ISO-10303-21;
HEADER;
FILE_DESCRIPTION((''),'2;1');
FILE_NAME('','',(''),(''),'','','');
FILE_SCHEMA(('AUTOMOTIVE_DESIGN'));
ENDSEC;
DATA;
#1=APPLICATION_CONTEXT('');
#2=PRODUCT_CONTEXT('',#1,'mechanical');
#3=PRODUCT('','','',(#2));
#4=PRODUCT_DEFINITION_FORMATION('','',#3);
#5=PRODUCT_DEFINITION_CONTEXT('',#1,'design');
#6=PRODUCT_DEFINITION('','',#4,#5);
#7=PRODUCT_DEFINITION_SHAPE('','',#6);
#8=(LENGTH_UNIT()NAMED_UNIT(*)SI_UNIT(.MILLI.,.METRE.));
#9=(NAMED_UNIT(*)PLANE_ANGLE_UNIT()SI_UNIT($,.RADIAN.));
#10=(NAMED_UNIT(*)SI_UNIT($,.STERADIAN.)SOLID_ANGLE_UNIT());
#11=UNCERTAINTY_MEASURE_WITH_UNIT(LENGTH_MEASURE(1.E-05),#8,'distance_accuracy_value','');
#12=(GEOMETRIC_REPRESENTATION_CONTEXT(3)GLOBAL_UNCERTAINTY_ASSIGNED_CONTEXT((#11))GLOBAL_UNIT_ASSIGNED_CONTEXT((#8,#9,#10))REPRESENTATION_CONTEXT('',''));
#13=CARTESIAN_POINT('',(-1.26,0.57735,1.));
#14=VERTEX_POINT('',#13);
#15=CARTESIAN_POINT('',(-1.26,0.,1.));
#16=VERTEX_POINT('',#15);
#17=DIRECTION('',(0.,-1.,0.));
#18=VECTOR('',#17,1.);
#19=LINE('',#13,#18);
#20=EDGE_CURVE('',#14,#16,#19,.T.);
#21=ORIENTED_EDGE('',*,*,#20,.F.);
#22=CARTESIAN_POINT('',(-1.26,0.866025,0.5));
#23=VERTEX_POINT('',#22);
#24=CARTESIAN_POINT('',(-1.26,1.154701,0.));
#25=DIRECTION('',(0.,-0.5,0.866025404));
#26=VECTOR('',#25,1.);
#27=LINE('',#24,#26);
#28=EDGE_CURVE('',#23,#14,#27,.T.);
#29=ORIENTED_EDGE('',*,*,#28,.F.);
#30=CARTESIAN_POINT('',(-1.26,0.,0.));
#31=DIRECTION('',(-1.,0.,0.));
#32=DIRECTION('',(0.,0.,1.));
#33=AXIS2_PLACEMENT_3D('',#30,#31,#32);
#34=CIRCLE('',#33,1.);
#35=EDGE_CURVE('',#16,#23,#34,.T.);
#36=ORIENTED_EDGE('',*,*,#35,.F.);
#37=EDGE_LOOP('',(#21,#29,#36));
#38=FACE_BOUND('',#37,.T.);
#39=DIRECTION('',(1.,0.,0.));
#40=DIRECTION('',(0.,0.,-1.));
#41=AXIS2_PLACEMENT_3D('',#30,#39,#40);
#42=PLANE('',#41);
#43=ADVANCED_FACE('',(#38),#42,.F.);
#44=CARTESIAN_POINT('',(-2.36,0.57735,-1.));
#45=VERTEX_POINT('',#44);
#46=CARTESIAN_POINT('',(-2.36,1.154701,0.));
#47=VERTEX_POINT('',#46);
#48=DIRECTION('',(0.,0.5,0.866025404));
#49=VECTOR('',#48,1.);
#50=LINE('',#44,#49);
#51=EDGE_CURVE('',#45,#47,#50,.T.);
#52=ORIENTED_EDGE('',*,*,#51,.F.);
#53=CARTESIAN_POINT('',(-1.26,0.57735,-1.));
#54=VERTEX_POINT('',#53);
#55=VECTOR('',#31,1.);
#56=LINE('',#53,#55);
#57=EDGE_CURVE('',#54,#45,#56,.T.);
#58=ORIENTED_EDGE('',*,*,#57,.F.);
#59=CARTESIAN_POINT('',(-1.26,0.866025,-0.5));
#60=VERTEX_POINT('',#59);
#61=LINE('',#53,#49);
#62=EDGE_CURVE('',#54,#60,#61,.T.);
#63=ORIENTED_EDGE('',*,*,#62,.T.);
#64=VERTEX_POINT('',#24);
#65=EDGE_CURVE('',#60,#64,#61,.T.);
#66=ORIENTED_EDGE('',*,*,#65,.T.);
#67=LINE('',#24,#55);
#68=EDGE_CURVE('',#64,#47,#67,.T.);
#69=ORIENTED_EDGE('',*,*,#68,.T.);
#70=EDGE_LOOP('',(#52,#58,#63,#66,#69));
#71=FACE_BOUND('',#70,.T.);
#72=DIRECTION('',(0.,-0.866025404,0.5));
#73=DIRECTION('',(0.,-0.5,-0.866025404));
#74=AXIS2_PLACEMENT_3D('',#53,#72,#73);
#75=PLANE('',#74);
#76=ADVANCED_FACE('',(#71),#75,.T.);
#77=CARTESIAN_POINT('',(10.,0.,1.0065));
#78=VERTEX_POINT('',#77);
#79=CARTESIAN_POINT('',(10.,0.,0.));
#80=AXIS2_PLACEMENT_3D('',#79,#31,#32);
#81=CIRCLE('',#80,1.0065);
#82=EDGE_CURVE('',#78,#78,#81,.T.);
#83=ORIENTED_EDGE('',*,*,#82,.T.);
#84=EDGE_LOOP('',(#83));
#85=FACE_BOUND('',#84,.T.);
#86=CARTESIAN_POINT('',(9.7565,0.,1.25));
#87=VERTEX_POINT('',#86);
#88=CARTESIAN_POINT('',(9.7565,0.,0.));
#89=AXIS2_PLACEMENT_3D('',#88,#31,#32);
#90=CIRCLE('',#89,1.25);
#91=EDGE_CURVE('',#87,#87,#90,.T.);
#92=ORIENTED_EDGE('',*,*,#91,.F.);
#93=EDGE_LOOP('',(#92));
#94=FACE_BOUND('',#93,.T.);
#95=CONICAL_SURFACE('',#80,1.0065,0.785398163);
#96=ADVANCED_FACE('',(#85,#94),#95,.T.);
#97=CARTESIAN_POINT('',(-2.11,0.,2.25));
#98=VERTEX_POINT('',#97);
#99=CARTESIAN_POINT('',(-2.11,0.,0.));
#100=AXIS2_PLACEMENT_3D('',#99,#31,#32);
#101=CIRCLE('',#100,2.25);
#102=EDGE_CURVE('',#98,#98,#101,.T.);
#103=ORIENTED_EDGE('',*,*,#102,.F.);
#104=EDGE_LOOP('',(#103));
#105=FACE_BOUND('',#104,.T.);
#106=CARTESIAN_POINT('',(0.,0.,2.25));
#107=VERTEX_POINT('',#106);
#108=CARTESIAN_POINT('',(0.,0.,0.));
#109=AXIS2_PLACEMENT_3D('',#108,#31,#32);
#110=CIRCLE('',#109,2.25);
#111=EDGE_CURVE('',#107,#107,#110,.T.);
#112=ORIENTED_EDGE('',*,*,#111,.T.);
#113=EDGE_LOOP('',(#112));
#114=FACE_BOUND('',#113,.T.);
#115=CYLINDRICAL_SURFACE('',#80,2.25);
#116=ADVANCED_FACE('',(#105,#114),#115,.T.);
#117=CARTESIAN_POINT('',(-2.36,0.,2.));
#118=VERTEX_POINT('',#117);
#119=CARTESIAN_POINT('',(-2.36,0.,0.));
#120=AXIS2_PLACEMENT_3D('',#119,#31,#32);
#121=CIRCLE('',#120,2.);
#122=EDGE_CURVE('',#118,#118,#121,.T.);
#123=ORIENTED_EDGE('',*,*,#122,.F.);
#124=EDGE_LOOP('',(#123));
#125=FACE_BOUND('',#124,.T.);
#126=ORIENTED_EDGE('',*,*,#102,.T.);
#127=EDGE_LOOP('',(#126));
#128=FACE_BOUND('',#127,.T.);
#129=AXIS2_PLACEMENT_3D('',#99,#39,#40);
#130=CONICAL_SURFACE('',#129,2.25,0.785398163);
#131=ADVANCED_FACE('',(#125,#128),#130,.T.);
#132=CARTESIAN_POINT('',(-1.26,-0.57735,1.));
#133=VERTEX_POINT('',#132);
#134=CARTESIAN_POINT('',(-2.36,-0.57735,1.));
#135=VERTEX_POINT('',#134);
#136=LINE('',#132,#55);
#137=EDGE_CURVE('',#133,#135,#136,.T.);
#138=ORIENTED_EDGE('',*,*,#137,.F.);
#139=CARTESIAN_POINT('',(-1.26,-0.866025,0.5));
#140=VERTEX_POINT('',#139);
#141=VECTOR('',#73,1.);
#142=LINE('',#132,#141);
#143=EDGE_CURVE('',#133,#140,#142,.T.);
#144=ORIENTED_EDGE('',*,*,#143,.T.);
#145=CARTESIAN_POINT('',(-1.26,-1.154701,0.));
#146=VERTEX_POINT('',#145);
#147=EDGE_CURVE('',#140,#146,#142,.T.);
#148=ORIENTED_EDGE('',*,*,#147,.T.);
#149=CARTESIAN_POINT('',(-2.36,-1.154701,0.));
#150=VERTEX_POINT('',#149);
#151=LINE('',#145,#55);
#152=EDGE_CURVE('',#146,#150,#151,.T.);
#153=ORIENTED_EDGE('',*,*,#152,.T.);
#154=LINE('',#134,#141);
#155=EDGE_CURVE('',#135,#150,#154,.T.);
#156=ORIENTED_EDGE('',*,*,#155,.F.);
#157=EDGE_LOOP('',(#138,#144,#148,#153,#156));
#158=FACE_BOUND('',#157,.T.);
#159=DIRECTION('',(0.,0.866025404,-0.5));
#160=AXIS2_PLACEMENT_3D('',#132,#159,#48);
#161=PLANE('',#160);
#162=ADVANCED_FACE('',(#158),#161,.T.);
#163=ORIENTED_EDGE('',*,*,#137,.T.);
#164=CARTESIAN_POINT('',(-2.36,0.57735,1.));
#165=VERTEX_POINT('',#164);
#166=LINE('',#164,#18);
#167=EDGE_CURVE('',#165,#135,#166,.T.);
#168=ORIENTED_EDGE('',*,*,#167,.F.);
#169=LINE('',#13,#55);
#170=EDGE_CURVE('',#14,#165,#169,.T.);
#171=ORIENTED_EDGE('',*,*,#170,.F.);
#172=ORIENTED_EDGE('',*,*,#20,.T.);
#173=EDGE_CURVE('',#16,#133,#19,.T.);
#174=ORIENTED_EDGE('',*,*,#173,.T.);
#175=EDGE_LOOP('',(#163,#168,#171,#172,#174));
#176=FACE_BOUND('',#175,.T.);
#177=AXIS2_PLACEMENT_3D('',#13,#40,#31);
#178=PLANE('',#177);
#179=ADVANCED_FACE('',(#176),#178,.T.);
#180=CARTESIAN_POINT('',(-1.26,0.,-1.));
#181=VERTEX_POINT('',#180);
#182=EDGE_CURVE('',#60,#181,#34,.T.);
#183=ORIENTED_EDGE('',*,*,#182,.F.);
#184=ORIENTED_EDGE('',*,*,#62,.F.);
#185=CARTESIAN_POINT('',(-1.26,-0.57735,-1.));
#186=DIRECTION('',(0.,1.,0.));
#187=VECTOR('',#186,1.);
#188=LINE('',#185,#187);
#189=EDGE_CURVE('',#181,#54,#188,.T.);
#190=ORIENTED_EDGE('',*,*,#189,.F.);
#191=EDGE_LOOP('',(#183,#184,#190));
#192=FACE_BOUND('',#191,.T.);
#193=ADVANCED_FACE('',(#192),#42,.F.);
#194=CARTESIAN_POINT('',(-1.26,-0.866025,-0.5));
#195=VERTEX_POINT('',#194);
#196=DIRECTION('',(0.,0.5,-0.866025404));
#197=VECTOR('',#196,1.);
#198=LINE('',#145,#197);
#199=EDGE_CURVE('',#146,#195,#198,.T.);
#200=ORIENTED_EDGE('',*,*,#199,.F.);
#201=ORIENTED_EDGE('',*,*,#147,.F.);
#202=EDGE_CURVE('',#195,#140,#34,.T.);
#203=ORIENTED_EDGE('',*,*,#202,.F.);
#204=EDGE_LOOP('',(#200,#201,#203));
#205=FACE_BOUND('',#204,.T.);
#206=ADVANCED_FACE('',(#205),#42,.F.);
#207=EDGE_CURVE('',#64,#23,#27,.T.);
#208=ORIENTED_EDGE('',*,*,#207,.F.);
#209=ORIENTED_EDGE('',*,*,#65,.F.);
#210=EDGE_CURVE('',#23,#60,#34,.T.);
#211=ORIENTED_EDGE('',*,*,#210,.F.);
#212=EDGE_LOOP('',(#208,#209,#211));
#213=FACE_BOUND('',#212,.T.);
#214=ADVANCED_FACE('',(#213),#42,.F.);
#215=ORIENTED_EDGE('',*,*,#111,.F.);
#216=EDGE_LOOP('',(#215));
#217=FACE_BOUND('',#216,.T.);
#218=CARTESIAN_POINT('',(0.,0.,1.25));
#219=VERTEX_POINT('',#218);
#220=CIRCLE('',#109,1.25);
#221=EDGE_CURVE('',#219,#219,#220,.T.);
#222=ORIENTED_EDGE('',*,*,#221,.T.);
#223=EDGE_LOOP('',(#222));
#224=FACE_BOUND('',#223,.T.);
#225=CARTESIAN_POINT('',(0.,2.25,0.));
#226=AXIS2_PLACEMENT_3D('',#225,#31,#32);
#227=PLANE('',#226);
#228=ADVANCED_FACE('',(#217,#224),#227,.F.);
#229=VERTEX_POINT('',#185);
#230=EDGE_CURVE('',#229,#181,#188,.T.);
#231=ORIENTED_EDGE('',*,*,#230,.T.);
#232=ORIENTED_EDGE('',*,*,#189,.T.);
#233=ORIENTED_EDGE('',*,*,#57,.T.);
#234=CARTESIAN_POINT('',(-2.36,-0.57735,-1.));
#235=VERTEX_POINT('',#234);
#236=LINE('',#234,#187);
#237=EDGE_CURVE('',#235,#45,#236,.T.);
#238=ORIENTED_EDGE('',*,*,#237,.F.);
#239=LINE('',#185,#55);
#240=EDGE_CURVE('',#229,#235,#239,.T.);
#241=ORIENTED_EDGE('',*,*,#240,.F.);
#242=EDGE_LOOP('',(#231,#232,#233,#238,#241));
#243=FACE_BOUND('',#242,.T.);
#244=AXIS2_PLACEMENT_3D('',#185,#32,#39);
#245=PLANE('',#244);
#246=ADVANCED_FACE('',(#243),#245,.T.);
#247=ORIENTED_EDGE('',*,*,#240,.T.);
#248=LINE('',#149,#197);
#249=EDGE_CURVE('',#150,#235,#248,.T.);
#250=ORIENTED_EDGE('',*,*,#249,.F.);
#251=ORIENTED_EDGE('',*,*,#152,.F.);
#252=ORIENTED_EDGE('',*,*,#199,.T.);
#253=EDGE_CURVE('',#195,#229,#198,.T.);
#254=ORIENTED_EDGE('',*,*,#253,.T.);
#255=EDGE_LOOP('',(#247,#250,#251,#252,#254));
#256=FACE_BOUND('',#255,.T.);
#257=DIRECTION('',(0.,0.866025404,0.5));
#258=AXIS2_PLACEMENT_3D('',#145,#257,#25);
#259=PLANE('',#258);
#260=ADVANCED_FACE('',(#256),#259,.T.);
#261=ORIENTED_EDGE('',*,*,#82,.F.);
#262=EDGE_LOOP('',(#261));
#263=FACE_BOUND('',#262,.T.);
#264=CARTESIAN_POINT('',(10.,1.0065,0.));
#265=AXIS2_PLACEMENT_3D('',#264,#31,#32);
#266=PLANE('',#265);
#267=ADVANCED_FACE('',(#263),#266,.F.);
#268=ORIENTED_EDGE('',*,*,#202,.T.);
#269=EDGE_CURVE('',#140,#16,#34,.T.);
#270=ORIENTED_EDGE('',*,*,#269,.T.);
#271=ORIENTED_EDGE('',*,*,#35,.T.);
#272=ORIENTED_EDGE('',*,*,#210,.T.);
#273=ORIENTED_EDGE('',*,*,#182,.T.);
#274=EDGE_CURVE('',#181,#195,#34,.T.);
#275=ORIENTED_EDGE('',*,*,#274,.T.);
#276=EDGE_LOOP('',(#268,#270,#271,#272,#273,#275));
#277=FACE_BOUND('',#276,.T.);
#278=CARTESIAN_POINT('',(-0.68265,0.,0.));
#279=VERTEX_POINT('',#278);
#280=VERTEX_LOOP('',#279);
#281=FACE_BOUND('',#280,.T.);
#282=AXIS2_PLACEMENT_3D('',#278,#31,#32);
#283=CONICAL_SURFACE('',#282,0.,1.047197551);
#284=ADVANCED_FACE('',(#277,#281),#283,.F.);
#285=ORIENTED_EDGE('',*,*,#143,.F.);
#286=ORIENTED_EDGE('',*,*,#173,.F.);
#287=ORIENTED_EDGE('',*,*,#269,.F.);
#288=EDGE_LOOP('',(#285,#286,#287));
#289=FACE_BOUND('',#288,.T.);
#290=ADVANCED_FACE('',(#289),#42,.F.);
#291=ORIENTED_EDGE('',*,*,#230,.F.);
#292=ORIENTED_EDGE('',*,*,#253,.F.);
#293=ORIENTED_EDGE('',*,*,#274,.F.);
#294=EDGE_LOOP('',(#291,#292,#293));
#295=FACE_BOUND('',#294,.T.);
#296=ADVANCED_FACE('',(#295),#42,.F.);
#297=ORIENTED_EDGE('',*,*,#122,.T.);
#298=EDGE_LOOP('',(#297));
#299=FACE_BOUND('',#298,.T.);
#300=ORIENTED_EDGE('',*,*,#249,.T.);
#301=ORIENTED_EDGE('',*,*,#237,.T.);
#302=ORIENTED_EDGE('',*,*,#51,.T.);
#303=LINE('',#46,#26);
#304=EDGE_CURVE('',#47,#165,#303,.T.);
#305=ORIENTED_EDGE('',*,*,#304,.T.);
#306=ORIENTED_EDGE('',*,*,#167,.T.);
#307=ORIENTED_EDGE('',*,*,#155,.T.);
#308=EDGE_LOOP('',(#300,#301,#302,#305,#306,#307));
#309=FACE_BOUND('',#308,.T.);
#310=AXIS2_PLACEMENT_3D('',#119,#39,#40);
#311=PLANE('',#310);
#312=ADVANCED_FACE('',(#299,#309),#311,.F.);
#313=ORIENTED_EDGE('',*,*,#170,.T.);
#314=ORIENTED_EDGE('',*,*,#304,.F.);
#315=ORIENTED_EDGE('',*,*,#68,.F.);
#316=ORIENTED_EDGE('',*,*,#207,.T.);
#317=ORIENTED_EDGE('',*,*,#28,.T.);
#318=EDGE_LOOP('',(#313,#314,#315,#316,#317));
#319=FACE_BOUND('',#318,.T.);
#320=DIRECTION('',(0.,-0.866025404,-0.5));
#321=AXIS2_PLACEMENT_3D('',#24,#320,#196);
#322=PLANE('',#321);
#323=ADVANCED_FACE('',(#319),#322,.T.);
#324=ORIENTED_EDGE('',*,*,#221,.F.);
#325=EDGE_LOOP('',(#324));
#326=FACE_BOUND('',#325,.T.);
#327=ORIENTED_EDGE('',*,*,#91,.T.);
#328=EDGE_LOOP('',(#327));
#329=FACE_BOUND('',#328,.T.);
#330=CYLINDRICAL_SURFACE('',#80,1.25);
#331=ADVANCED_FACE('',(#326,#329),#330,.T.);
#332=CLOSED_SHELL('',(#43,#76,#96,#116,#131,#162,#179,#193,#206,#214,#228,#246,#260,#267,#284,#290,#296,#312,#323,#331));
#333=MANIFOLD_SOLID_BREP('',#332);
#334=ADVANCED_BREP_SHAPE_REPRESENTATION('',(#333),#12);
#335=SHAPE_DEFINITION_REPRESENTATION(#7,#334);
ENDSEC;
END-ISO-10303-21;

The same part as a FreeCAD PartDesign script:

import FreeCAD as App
import Part
import Sketcher

V = App.Vector
Q = App.Units.Quantity

doc = App.newDocument("Part")
body = doc.addObject("PartDesign::Body", "Body")

# Sketch on XY plane
sketch1 = body.newObject("Sketcher::SketchObject", "Sketch")
sketch1.AttachmentSupport = (doc.getObject("XY_Plane"), [""])
sketch1.MapMode = "FlatFace"
sketch1.addGeometry([
    Part.LineSegment(V(-2.36, 2, 0), V(-2.36, 0, 0)),  # 0
    Part.LineSegment(V(-2.36, 0, 0), V(10, 0, 0)),  # 1
    Part.LineSegment(V(10, 0, 0), V(10, 1.0065, 0)),  # 2
    Part.LineSegment(V(10, 1.0065, 0), V(9.7565, 1.25, 0)),  # 3
    Part.LineSegment(V(9.7565, 1.25, 0), V(0, 1.25, 0)),  # 4
    Part.LineSegment(V(0, 1.25, 0), V(0, 2.25, 0)),  # 5
    Part.LineSegment(V(0, 2.25, 0), V(-2.11, 2.25, 0)),  # 6
    Part.LineSegment(V(-2.11, 2.25, 0), V(-2.36, 2, 0)),  # 7
], False)
sketch1.addConstraint([
    Sketcher.Constraint("Coincident", 0, 2, 1, 1),
    Sketcher.Constraint("Coincident", 1, 2, 2, 1),
    Sketcher.Constraint("Coincident", 2, 2, 3, 1),
    Sketcher.Constraint("Coincident", 3, 2, 4, 1),
    Sketcher.Constraint("Coincident", 4, 2, 5, 1),
    Sketcher.Constraint("Coincident", 5, 2, 6, 1),
    Sketcher.Constraint("Coincident", 6, 2, 7, 1),
    Sketcher.Constraint("Coincident", 7, 2, 0, 1),
    Sketcher.Constraint("Vertical", 0),
    Sketcher.Constraint("Horizontal", 1),
    Sketcher.Constraint("Vertical", 2),
    Sketcher.Constraint("Horizontal", 4),
    Sketcher.Constraint("Vertical", 5),
    Sketcher.Constraint("Horizontal", 6),
    Sketcher.Constraint("PointOnObject", 0, 2, -1),
    Sketcher.Constraint("PointOnObject", 4, 2, -2),
    Sketcher.Constraint("Perpendicular", 3, 7),
    Sketcher.Constraint("DistanceY", 0, 2, 0, 1, 2.0),
    Sketcher.Constraint("DistanceY", 5, 1, 5, 2, 1.0),
    Sketcher.Constraint("Angle", 3, Q("135 deg")),
    Sketcher.Constraint("DistanceX", -1, 1, 1, 2, 10.0),
    Sketcher.Constraint("DistanceX", 1, 1, 1, 2, 12.36),
    Sketcher.Constraint("DistanceX", 6, 2, 6, 1, 2.11),
    Sketcher.Constraint("DistanceX", 4, 2, 4, 1, 9.7565),
])
revolution = body.newObject("PartDesign::Revolution", "Revolution")
revolution.Profile = sketch1
revolution.ReferenceAxis = (sketch1, ["H_Axis"])
revolution.Angle = 360

# Sketch on YZ plane
sketch2 = body.newObject("Sketcher::SketchObject", "Sketch001")
sketch2.AttachmentSupport = (doc.getObject("YZ_Plane"), [""])
sketch2.MapMode = "FlatFace"
sketch2.AttachmentOffset = App.Placement(V(0, 0, -2.36), App.Rotation())
sketch2.addGeometry([
    Part.LineSegment(V(0.57735, 1, 0), V(-0.57735, 1, 0)),  # 0
    Part.LineSegment(V(-0.57735, 1, 0), V(-1.154701, 0, 0)),  # 1
    Part.LineSegment(V(-1.154701, 0, 0), V(-0.57735, -1, 0)),  # 2
    Part.LineSegment(V(-0.57735, -1, 0), V(0.57735, -1, 0)),  # 3
    Part.LineSegment(V(0.57735, -1, 0), V(1.154701, 0, 0)),  # 4
    Part.LineSegment(V(1.154701, 0, 0), V(0.57735, 1, 0)),  # 5
], False)
sketch2.addConstraint([
    Sketcher.Constraint("Coincident", 0, 2, 1, 1),
    Sketcher.Constraint("Coincident", 1, 2, 2, 1),
    Sketcher.Constraint("Coincident", 2, 2, 3, 1),
    Sketcher.Constraint("Coincident", 3, 2, 4, 1),
    Sketcher.Constraint("Coincident", 4, 2, 5, 1),
    Sketcher.Constraint("Coincident", 5, 2, 0, 1),
    Sketcher.Constraint("Horizontal", 0),
    Sketcher.Constraint("Horizontal", 3),
    Sketcher.Constraint("Symmetric", 0, 2, 3, 2, -1, 1),
    Sketcher.Constraint("Symmetric", 1, 2, 4, 2, -1, 1),
    Sketcher.Constraint("PointOnObject", 1, 2, -1),
    Sketcher.Constraint("Parallel", 2, 5),
    Sketcher.Constraint("Vertical", 0, 2, 2, 2),
    Sketcher.Constraint("Angle", 1, Q("-120 deg")),
    Sketcher.Constraint("DistanceY", -1, 1, 0, 2, 1.0),
    Sketcher.Constraint("DistanceX", 0, 2, 0, 1, 1.154701),
])
pocket1 = body.newObject("PartDesign::Pocket", "Pocket")
pocket1.Profile = sketch2
pocket1.Length = 1.1
pocket1.Reversed = True

# Sketch on XY plane
sketch3 = body.newObject("Sketcher::SketchObject", "Sketch002")
sketch3.AttachmentSupport = (doc.getObject("XY_Plane"), [""])
sketch3.MapMode = "FlatFace"
sketch3.addGeometry([
    Part.LineSegment(V(-1.26, 1, 0), V(-1.26, 0, 0)),
    Part.LineSegment(V(-1.26, 0, 0), V(-0.68265, 0, 0)),
    Part.LineSegment(V(-0.68265, 0, 0), V(-1.26, 1, 0)),
], False)
sketch3.addConstraint([
    Sketcher.Constraint("Coincident", 0, 2, 1, 1),
    Sketcher.Constraint("Coincident", 1, 2, 2, 1),
    Sketcher.Constraint("Coincident", 2, 2, 0, 1),
    Sketcher.Constraint("Vertical", 0),
    Sketcher.Constraint("Horizontal", 1),
    Sketcher.Constraint("PointOnObject", 0, 2, -1),
    Sketcher.Constraint("DistanceY", 0, 2, 0, 1, 1.0),
    Sketcher.Constraint("Angle", 2, Q("120 deg")),
    Sketcher.Constraint("DistanceX", 0, 2, -1, 1, 1.26),
])
groove = body.newObject("PartDesign::Groove", "Groove")
groove.Profile = sketch3
groove.ReferenceAxis = (sketch3, ["H_Axis"])
groove.Angle = 360

doc.recompute()
